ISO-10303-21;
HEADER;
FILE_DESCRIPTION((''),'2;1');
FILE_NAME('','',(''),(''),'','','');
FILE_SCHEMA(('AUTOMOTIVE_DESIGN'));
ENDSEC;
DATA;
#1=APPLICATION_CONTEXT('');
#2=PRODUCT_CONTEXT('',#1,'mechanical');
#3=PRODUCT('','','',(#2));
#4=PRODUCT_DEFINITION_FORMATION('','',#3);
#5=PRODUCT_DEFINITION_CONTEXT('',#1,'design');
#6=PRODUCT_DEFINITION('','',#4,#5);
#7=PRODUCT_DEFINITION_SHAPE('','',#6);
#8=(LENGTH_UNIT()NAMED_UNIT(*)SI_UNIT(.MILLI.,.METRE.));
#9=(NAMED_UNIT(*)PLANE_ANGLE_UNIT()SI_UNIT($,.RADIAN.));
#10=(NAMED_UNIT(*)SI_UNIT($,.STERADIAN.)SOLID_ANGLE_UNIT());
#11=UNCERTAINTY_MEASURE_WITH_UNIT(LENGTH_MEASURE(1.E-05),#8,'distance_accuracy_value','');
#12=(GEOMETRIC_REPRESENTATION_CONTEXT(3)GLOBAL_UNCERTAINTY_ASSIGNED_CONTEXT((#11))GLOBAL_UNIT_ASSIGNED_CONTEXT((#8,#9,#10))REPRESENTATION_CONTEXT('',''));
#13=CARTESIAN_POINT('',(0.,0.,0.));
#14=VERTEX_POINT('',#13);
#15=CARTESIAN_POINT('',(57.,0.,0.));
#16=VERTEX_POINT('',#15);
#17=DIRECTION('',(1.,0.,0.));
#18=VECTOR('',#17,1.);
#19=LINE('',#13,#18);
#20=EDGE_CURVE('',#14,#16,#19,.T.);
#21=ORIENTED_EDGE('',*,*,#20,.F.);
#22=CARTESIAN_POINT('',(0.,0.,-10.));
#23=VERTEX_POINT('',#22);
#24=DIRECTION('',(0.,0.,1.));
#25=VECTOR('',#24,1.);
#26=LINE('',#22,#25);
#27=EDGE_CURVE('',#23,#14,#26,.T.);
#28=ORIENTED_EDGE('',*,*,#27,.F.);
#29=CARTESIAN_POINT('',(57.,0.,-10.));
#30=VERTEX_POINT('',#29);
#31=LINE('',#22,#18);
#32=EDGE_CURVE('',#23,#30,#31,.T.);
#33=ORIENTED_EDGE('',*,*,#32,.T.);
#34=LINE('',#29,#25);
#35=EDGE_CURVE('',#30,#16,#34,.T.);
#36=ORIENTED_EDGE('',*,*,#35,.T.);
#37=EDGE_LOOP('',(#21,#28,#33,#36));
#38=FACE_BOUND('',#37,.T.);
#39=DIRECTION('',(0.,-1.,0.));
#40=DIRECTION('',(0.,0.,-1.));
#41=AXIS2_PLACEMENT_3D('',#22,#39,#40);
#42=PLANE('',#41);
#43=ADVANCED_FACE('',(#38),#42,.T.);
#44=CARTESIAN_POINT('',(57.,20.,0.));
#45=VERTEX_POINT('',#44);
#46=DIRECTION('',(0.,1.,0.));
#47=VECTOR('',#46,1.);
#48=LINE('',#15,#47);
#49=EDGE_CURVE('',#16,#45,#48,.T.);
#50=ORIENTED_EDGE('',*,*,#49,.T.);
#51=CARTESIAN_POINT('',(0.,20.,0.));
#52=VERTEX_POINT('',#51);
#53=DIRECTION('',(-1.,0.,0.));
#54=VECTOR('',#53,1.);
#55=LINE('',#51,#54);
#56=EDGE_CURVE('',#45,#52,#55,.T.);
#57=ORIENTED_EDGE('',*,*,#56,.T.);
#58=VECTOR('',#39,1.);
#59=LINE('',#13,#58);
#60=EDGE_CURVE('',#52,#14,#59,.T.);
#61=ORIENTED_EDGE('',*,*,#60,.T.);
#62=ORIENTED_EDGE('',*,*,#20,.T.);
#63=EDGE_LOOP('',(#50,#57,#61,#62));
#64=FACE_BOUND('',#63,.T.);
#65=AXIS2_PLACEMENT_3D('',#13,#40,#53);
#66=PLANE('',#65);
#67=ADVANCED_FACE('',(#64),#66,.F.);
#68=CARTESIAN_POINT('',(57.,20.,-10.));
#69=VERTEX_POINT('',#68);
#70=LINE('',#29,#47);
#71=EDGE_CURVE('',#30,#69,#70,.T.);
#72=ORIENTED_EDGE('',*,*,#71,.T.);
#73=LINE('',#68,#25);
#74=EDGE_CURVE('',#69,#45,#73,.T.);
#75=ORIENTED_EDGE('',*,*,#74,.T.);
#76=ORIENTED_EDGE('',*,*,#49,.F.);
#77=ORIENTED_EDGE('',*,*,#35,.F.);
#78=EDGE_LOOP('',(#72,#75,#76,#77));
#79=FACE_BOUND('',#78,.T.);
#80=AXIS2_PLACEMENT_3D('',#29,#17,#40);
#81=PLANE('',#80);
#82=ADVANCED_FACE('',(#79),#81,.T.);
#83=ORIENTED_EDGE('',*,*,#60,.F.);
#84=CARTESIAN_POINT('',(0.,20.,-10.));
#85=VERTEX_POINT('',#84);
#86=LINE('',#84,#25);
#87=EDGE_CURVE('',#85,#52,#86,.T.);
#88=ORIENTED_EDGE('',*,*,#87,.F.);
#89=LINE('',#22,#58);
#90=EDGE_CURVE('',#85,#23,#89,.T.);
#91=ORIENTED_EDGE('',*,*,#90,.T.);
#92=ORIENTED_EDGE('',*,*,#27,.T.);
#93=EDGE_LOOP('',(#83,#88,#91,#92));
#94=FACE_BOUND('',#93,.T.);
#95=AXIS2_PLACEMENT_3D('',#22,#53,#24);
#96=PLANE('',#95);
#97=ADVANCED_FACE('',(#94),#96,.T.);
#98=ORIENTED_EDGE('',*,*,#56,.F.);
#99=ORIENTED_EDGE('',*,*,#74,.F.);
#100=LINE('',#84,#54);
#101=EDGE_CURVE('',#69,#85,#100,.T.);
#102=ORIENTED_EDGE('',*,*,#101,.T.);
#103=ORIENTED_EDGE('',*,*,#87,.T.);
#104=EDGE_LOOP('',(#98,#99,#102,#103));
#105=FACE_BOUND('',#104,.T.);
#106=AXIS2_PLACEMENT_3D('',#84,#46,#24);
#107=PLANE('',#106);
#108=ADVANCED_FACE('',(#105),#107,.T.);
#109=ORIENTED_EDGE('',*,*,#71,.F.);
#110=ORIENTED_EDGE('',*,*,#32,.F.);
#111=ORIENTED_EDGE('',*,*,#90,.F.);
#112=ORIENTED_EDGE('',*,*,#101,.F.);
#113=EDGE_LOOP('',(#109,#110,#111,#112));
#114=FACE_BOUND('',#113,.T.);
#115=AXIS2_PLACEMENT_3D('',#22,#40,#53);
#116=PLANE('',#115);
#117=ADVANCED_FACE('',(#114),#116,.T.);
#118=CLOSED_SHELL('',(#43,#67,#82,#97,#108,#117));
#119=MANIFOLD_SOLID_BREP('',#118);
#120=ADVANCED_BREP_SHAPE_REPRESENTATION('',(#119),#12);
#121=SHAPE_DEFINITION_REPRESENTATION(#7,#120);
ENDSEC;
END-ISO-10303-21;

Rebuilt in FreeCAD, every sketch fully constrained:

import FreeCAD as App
import Part
import Sketcher

V = App.Vector
Q = App.Units.Quantity

doc = App.newDocument("Part")
params = doc.addObject("Spreadsheet::Sheet", "Params")
for row, (alias, value) in enumerate([
    ("sketch1_width", "57 mm"),
    ("sketch1_height", "20 mm"),
    ("pad1_length", "10 mm"),
], start=1):
    params.set(f"A{row}", alias)
    params.set(f"B{row}", "=" + value)
    params.setAlias(f"B{row}", alias)

body = doc.addObject("PartDesign::Body", "Body")

sketch1 = doc.addObject("Sketcher::SketchObject", "Sketch")
body.addObject(sketch1)
sketch1.AttachmentSupport = (doc.XY_Plane, [""])
sketch1.MapMode = "FlatFace"
sketch1.addGeometry(Part.LineSegment(V(0, 20, 0), V(0, 0, 0)), False)
sketch1.addGeometry(Part.LineSegment(V(0, 0, 0), V(57, 0, 0)), False)
sketch1.addGeometry(Part.LineSegment(V(57, 0, 0), V(57, 20, 0)), False)
sketch1.addGeometry(Part.LineSegment(V(57, 20, 0), V(0, 20, 0)), False)
sketch1.addConstraint(Sketcher.Constraint("Coincident", 0, 2, 1, 1))
sketch1.addConstraint(Sketcher.Constraint("Coincident", 1, 2, 2, 1))
sketch1.addConstraint(Sketcher.Constraint("Coincident", 2, 2, 3, 1))
sketch1.addConstraint(Sketcher.Constraint("Coincident", 3, 2, 0, 1))
sketch1.addConstraint(Sketcher.Constraint("Vertical", 0))
sketch1.addConstraint(Sketcher.Constraint("Horizontal", 1))
sketch1.addConstraint(Sketcher.Constraint("Vertical", 2))
sketch1.addConstraint(Sketcher.Constraint("Horizontal", 3))
sketch1.addConstraint(Sketcher.Constraint("Coincident", 0, 2, -1, 1))
sketch1.addConstraint(Sketcher.Constraint("DistanceX", 1, 1, 1, 2, Q("57 mm")))
sketch1.addConstraint(Sketcher.Constraint("DistanceY", 0, 2, 0, 1, Q("20 mm")))
sketch1.setExpression("Constraints[9]", "Params.sketch1_width")
sketch1.setExpression("Constraints[10]", "Params.sketch1_height")
pad1 = doc.addObject("PartDesign::Pad", "Pad")
body.addObject(pad1)
pad1.Profile = sketch1
pad1.setExpression("Length", "Params.pad1_length")
pad1.Reversed = True

doc.recompute()
